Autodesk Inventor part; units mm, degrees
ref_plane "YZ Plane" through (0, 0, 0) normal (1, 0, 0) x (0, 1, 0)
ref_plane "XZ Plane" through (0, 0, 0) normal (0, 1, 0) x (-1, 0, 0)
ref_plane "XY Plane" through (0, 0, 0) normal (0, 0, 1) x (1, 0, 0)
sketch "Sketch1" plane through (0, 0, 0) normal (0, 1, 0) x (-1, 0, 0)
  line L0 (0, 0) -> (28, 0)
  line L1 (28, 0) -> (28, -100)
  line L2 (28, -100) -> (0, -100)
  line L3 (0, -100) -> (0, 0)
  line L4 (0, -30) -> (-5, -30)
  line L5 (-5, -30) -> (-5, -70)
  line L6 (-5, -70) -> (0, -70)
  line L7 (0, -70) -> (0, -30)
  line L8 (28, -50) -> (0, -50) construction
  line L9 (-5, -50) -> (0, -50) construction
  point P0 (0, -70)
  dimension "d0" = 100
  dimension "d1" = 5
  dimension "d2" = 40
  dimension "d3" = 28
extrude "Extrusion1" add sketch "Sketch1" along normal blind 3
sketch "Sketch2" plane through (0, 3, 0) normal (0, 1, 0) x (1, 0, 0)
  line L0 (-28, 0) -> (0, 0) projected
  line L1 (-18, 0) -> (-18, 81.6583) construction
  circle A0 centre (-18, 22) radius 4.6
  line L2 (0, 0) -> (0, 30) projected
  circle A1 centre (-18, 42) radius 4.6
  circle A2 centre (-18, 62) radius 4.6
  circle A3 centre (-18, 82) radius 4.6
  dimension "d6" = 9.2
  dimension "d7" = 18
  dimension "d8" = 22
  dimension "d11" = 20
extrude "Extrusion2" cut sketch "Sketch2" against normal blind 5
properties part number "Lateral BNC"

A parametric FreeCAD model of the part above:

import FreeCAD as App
import Part
import Sketcher

V = App.Vector
Q = App.Units.Quantity

doc = App.newDocument("Part")
body = doc.addObject("PartDesign::Body", "Body")

# Sketch on XZ plane
sketch1 = body.newObject("Sketcher::SketchObject", "Sketch")
sketch1.AttachmentSupport = (doc.getObject("XZ_Plane"), [""])
sketch1.MapMode = "FlatFace"
sketch1.addGeometry(Part.LineSegment(V(-28, 0, 0), V(0, 0, 0)), False)
sketch1.addGeometry(Part.LineSegment(V(0, 0, 0), V(0, -30, 0)), False)
sketch1.addGeometry(Part.LineSegment(V(0, -30, 0), V(5, -30, 0)), False)
sketch1.addGeometry(Part.LineSegment(V(5, -30, 0), V(5, -70, 0)), False)
sketch1.addGeometry(Part.LineSegment(V(5, -70, 0), V(0, -70, 0)), False)
sketch1.addGeometry(Part.LineSegment(V(0, -70, 0), V(0, -100, 0)), False)
sketch1.addGeometry(Part.LineSegment(V(0, -100, 0), V(-28, -100, 0)), False)
sketch1.addGeometry(Part.LineSegment(V(-28, -100, 0), V(-28, 0, 0)), False)
sketch1.addConstraint(Sketcher.Constraint("Coincident", 0, 2, 1, 1))
sketch1.addConstraint(Sketcher.Constraint("Coincident", 1, 2, 2, 1))
sketch1.addConstraint(Sketcher.Constraint("Coincident", 2, 2, 3, 1))
sketch1.addConstraint(Sketcher.Constraint("Coincident", 3, 2, 4, 1))
sketch1.addConstraint(Sketcher.Constraint("Coincident", 4, 2, 5, 1))
sketch1.addConstraint(Sketcher.Constraint("Coincident", 5, 2, 6, 1))
sketch1.addConstraint(Sketcher.Constraint("Coincident", 6, 2, 7, 1))
sketch1.addConstraint(Sketcher.Constraint("Coincident", 7, 2, 0, 1))
sketch1.addConstraint(Sketcher.Constraint("Horizontal", 0))
sketch1.addConstraint(Sketcher.Constraint("Vertical", 1))
sketch1.addConstraint(Sketcher.Constraint("Horizontal", 2))
sketch1.addConstraint(Sketcher.Constraint("Vertical", 3))
sketch1.addConstraint(Sketcher.Constraint("Horizontal", 4))
sketch1.addConstraint(Sketcher.Constraint("Vertical", 5))
sketch1.addConstraint(Sketcher.Constraint("Horizontal", 6))
sketch1.addConstraint(Sketcher.Constraint("Vertical", 7))
sketch1.addConstraint(Sketcher.Constraint("Coincident", 0, 2, -1, 1))
sketch1.addConstraint(Sketcher.Constraint("PointOnObject", 4, 2, -2))
sketch1.addConstraint(Sketcher.Constraint("Equal", 1, 5))
sketch1.addConstraint(Sketcher.Constraint("DistanceX", 0, 1, 0, 2, Q("28 mm")))
sketch1.addConstraint(Sketcher.Constraint("DistanceX", 2, 1, 2, 2, Q("5 mm")))
sketch1.addConstraint(Sketcher.Constraint("DistanceY", 3, 2, 3, 1, Q("40 mm")))
sketch1.addConstraint(Sketcher.Constraint("DistanceY", 7, 1, 7, 2, Q("100 mm")))
pad1 = body.newObject("PartDesign::Pad", "Pad")
pad1.Profile = sketch1
pad1.Length = 3
pad1.Reversed = True

# Sketch on XZ plane
sketch2 = body.newObject("Sketcher::SketchObject", "Sketch001")
sketch2.AttachmentSupport = (doc.getObject("XZ_Plane"), [""])
sketch2.MapMode = "FlatFace"
sketch2.AttachmentOffset = App.Placement(V(0, 0, -3), App.Rotation())
sketch2.addGeometry(Part.Circle(V(-18, -22, 0), V(0, 0, 1), 4.6), False)
sketch2.addGeometry(Part.Circle(V(-18, -42, 0), V(0, 0, 1), 4.6), False)
sketch2.addGeometry(Part.Circle(V(-18, -62, 0), V(0, 0, 1), 4.6), False)
sketch2.addGeometry(Part.Circle(V(-18, -82, 0), V(0, 0, 1), 4.6), False)
sketch2.addConstraint(Sketcher.Constraint("Equal", 0, 1))
sketch2.addConstraint(Sketcher.Constraint("Equal", 1, 2))
sketch2.addConstraint(Sketcher.Constraint("Equal", 2, 3))
sketch2.addConstraint(Sketcher.Constraint("Vertical", 0, 3, 1, 3))
sketch2.addConstraint(Sketcher.Constraint("Vertical", 1, 3, 2, 3))
sketch2.addConstraint(Sketcher.Constraint("Vertical", 2, 3, 3, 3))
sketch2.addConstraint(Sketcher.Constraint("Diameter", 0, Q("9.2 mm")))
sketch2.addConstraint(Sketcher.Constraint("DistanceX", 0, 3, -1, 1, Q("18 mm")))
sketch2.addConstraint(Sketcher.Constraint("DistanceY", 0, 3, -1, 1, Q("22 mm")))
sketch2.addConstraint(Sketcher.Constraint("DistanceY", 1, 3, 0, 3, Q("20 mm")))
sketch2.addConstraint(Sketcher.Constraint("DistanceY", 2, 3, 1, 3, Q("20 mm")))
sketch2.addConstraint(Sketcher.Constraint("DistanceY", 3, 3, 2, 3, Q("20 mm")))
pocket1 = body.newObject("PartDesign::Pocket", "Pocket")
pocket1.Profile = sketch2
pocket1.Length = 5
pocket1.Reversed = True

doc.recompute()
